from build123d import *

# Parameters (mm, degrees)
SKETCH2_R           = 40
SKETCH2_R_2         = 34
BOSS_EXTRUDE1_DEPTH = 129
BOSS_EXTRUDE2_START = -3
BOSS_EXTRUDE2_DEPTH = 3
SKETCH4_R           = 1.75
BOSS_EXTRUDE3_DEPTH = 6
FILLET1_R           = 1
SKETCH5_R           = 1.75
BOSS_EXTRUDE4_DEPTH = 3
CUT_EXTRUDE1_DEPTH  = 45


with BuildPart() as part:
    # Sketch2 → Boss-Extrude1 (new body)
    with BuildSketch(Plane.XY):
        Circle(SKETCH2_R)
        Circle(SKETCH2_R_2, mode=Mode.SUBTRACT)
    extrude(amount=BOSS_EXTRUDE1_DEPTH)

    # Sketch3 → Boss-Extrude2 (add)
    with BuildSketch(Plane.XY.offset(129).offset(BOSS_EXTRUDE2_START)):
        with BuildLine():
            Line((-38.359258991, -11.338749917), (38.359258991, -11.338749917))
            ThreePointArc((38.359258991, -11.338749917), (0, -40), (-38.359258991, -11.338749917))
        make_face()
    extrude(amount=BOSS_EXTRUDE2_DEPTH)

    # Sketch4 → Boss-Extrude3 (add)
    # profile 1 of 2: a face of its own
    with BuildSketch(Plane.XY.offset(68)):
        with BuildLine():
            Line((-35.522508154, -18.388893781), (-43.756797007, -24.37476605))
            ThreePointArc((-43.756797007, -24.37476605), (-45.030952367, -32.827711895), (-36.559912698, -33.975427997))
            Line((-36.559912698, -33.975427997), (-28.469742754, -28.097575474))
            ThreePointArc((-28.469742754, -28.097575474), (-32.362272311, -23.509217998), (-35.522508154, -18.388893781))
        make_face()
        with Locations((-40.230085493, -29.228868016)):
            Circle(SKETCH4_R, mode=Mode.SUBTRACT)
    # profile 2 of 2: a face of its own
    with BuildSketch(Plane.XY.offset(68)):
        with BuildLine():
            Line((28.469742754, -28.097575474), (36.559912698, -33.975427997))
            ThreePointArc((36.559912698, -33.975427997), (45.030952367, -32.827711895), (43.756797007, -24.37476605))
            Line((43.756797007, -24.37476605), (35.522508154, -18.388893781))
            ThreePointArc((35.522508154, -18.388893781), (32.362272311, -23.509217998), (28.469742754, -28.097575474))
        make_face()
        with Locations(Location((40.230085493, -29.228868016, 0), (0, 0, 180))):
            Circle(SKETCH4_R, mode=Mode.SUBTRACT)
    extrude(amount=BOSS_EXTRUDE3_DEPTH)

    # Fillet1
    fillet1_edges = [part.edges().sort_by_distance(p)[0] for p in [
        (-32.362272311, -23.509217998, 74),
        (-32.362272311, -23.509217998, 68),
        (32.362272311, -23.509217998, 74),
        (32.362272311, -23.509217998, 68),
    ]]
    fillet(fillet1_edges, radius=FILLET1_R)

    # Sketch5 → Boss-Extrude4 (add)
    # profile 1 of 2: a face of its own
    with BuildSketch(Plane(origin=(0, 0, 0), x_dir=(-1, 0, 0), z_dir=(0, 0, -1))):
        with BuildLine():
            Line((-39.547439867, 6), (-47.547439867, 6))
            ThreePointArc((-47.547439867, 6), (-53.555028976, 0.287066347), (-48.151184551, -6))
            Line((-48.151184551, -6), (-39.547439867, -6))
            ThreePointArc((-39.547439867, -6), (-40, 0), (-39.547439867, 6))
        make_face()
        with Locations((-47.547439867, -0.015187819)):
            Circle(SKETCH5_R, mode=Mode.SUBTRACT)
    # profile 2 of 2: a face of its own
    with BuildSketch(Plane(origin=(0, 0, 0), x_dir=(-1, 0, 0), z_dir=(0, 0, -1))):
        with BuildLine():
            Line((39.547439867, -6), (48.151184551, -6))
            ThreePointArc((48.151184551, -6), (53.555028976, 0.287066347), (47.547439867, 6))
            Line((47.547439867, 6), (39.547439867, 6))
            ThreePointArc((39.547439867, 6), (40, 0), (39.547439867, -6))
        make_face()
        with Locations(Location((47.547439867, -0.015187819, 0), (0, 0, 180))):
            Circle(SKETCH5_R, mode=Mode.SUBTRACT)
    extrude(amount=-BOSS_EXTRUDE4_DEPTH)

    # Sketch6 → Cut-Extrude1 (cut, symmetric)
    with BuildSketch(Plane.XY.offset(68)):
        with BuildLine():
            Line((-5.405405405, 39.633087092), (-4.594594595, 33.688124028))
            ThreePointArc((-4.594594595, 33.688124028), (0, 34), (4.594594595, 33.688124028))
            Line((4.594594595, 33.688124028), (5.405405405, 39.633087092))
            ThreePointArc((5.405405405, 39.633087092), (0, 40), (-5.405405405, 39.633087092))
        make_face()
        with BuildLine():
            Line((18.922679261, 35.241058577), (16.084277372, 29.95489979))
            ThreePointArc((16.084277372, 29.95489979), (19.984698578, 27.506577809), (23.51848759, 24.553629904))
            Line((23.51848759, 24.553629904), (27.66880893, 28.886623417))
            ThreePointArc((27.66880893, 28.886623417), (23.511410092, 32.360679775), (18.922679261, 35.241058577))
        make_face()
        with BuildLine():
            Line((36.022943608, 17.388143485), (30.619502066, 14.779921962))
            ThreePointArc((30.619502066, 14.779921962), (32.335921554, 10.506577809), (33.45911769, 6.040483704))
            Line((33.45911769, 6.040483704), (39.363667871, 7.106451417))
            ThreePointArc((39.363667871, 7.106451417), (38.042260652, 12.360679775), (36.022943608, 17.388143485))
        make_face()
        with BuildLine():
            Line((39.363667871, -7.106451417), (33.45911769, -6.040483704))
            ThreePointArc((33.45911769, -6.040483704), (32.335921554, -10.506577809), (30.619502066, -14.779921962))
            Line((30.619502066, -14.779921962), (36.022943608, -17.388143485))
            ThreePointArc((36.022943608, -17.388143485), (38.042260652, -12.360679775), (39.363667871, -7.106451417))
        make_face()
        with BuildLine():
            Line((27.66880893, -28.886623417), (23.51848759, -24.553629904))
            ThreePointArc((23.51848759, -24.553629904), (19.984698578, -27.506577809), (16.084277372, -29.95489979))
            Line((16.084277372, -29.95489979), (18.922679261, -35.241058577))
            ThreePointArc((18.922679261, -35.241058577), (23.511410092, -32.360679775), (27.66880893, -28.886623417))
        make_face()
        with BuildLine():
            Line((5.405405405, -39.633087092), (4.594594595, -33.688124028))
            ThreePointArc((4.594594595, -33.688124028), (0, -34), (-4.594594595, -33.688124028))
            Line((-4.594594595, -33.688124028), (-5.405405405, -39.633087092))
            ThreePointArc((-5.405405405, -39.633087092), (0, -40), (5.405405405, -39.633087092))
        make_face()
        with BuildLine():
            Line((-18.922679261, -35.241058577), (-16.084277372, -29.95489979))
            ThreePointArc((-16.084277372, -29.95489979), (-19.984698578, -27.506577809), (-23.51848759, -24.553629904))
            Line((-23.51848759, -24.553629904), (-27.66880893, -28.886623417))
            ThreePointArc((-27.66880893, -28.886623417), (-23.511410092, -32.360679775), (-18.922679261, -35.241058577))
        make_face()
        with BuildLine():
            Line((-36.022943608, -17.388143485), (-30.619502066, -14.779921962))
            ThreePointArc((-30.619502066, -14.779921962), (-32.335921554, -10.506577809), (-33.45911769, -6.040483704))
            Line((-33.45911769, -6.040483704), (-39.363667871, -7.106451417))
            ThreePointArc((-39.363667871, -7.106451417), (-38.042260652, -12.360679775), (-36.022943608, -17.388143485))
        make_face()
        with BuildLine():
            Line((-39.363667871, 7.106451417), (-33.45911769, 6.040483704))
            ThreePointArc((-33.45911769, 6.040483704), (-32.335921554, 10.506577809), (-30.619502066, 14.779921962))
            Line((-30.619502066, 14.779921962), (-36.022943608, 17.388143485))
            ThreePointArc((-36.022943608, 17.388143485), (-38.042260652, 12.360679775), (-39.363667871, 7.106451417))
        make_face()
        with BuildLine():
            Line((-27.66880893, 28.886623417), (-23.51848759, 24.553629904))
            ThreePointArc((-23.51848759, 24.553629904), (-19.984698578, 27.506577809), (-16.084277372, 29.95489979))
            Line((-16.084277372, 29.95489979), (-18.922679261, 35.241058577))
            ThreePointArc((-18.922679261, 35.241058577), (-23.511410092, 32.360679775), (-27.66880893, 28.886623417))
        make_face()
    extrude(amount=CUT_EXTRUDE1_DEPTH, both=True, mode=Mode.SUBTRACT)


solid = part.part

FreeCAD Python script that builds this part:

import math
import FreeCAD as App
import Part
import Sketcher

V = App.Vector
Q = App.Units.Quantity


def edges_at(feature, points):
    """Names of the edges that pass closest to the given points."""
    edges = feature.Shape.Edges
    near = lambda p: min(range(len(edges)), key=lambda i: edges[i].distToShape(Part.Vertex(*p))[0])
    return sorted({f"Edge{near(p) + 1}" for p in points})

doc = App.newDocument("Part")
body = doc.addObject("PartDesign::Body", "Body")

sketch1 = doc.addObject("Sketcher::SketchObject", "Sketch")
body.addObject(sketch1)
sketch1.AttachmentSupport = (doc.XY_Plane, [""])
sketch1.MapMode = "FlatFace"
sketch1.addGeometry([
    Part.Circle(V(0, 0, 0), V(0, 0, 1), 40),
    Part.Circle(V(0, 0, 0), V(0, 0, 1), 34),
], False)
sketch1.addConstraint([
    Sketcher.Constraint("Coincident", 0, 3, -1, 1),
    Sketcher.Constraint("Coincident", 1, 3, -1, 1),
    Sketcher.Constraint("Diameter", 0, Q("80 mm")),
    Sketcher.Constraint("Diameter", 1, Q("68 mm")),
])
pad1 = doc.addObject("PartDesign::Pad", "Pad")
body.addObject(pad1)
pad1.Profile = sketch1
pad1.Length = 129

sketch2 = doc.addObject("Sketcher::SketchObject", "Sketch001")
body.addObject(sketch2)
sketch2.AttachmentSupport = (doc.XY_Plane, [""])
sketch2.MapMode = "FlatFace"
sketch2.AttachmentOffset = App.Placement(V(0, 0, 126), App.Rotation())
sketch2.addGeometry([
    Part.LineSegment(V(38, -11, 0), V(-38, -11, 0)),
    Part.ArcOfCircle(Part.Circle(V(0, 0, 0), V(0, 0, 1), 40), math.radians(-164), math.radians(-16)),
], False)
sketch2.addConstraint([
    Sketcher.Constraint("Coincident", 0, 1, 1, 2),
    Sketcher.Constraint("Coincident", 1, 1, 0, 2),
    Sketcher.Constraint("Horizontal", 0),
    Sketcher.Constraint("Coincident", 1, 3, -1, 1),
    Sketcher.Constraint("Radius", 1, Q("40 mm")),
    Sketcher.Constraint("DistanceX", 0, 2, 0, 1, Q("76.718518 mm")),
])
pad2 = doc.addObject("PartDesign::Pad", "Pad001")
body.addObject(pad2)
pad2.Profile = sketch2
pad2.Length = 3

sketch3 = doc.addObject("Sketcher::SketchObject", "Sketch002")
body.addObject(sketch3)
sketch3.AttachmentSupport = (doc.XY_Plane, [""])
sketch3.MapMode = "FlatFace"
sketch3.AttachmentOffset = App.Placement(V(0, 0, 68), App.Rotation())
sketch3.addGeometry([
    Part.LineSegment(V(-35.5, -18.4, 0), V(-43.8, -24.4, 0)),
    Part.ArcOfCircle(Part.Circle(V(-40.2, -29.2, 0), V(0, 0, 1), 6), math.radians(126), math.radians(308)),
    Part.LineSegment(V(-36.6, -34, 0), V(-28.5, -28.1, 0)),
    Part.ArcOfCircle(Part.Circle(V(0, 0, 0), V(0, 0, 1), 40), math.radians(-152.63), math.radians(-135.38)),
    Part.Circle(V(-40.2, -29.2, 0), V(0, 0, 1), 1.8),
    Part.LineSegment(V(28.5, -28.1, 0), V(36.6, -34, 0)),
    Part.ArcOfCircle(Part.Circle(V(40.2, -29.2, 0), V(0, 0, 1), 6), math.radians(-128), math.radians(54)),
    Part.LineSegment(V(43.8, -24.4, 0), V(35.5, -18.4, 0)),
    Part.ArcOfCircle(Part.Circle(V(0, 0, 0), V(0, 0, 1), 40), math.radians(-44.62), math.radians(-27.37)),
    Part.Circle(V(40.2, -29.2, 0), V(0, 0, 1), 1.8),
], False)
sketch3.addConstraint([
    Sketcher.Constraint("Coincident", 0, 2, 1, 1),
    Sketcher.Constraint("Coincident", 1, 2, 2, 1),
    Sketcher.Constraint("Coincident", 2, 2, 3, 2),
    Sketcher.Constraint("Coincident", 3, 1, 0, 1),
    Sketcher.Constraint("Coincident", 5, 2, 6, 1),
    Sketcher.Constraint("Coincident", 6, 2, 7, 1),
    Sketcher.Constraint("Coincident", 7, 2, 8, 2),
    Sketcher.Constraint("Coincident", 8, 1, 5, 1),
    Sketcher.Constraint("Coincident", 3, 3, -1, 1),
    Sketcher.Constraint("Coincident", 8, 3, -1, 1),
    Sketcher.Constraint("Coincident", 4, 3, 1, 3),
    Sketcher.Constraint("Coincident", 9, 3, 6, 3),
    Sketcher.Constraint("Equal", 1, 6),
    Sketcher.Constraint("Equal", 3, 8),
    Sketcher.Constraint("Equal", 4, 9),
    Sketcher.Constraint("Symmetric", 1, 3, 6, 3, -2),
    Sketcher.Constraint("Horizontal", 1, 2, 5, 2),
    Sketcher.Constraint("Horizontal", 0, 2, 6, 2),
    Sketcher.Constraint("Horizontal", 3, 1, 7, 2),
    Sketcher.Constraint("Horizontal", 2, 2, 8, 1),
    Sketcher.Constraint("Radius", 1, Q("6 mm")),
    Sketcher.Constraint("Radius", 3, Q("40 mm")),
    Sketcher.Constraint("Diameter", 4, Q("3.5 mm")),
    Sketcher.Constraint("Angle", 2, Q("36 deg")),
    Sketcher.Constraint("Distance", 2, Q("10 mm")),
    Sketcher.Constraint("DistanceY", 1, 3, 0, 2, Q("4.854102 mm")),
    Sketcher.Constraint("DistanceY", 1, 3, -1, 1, Q("29.228868 mm")),
    Sketcher.Constraint("DistanceX", 3, 1, -1, 1, Q("35.522508 mm")),
    Sketcher.Constraint("DistanceX", 4, 3, 6, 3, Q("80.460171 mm")),
])
pad3 = doc.addObject("PartDesign::Pad", "Pad002")
body.addObject(pad3)
pad3.Profile = sketch3
pad3.Length = 6
doc.recompute()

fillet = doc.addObject("PartDesign::Fillet", "Fillet")
body.addObject(fillet)
fillet.Base = (pad3, edges_at(pad3, [
    (-32.362, -23.509, 74),
    (-32.362, -23.509, 68),
    (32.362, -23.509, 74),
    (32.362, -23.509, 68),
]))
fillet.Radius = 1

sketch4 = doc.addObject("Sketcher::SketchObject", "Sketch003")
body.addObject(sketch4)
sketch4.AttachmentSupport = (doc.XY_Plane, [""])
sketch4.MapMode = "FlatFace"
sketch4.addGeometry([
    Part.LineSegment(V(39.5, 6, 0), V(47.5, 6, 0)),
    Part.ArcOfCircle(Part.Circle(V(47.5, 0, 0), V(0, 0, 1), 6), math.radians(-84), math.radians(90)),
    Part.LineSegment(V(48.2, -6, 0), V(39.5, -6, 0)),
    Part.ArcOfCircle(Part.Circle(V(0, 0, 0), V(0, 0, 1), 40), math.radians(-8.63), math.radians(8.63)),
    Part.Circle(V(47.5, 0, 0), V(0, 0, 1), 1.8),
    Part.LineSegment(V(-39.5, -6, 0), V(-48.2, -6, 0)),
    Part.ArcOfCircle(Part.Circle(V(-47.5, 0, 0), V(0, 0, 1), 6), math.radians(90), math.radians(264)),
    Part.LineSegment(V(-47.5, 6, 0), V(-39.5, 6, 0)),
    Part.ArcOfCircle(Part.Circle(V(0, 0, 0), V(0, 0, 1), 40), math.radians(171.37), math.radians(188.63)),
    Part.Circle(V(-47.5, 0, 0), V(0, 0, 1), 1.8),
], False)
sketch4.addConstraint([
    Sketcher.Constraint("Tangent", 0, 2, 1, 2),
    Sketcher.Constraint("Coincident", 1, 1, 2, 1),
    Sketcher.Constraint("Coincident", 2, 2, 3, 1),
    Sketcher.Constraint("Coincident", 3, 2, 0, 1),
    Sketcher.Constraint("Coincident", 5, 2, 6, 2),
    Sketcher.Constraint("Tangent", 6, 1, 7, 1),
    Sketcher.Constraint("Coincident", 7, 2, 8, 1),
    Sketcher.Constraint("Coincident", 8, 2, 5, 1),
    Sketcher.Constraint("Horizontal", 0),
    Sketcher.Constraint("Horizontal", 2),
    Sketcher.Constraint("Horizontal", 5),
    Sketcher.Constraint("Horizontal", 7),
    Sketcher.Constraint("Coincident", 3, 3, -1, 1),
    Sketcher.Constraint("Coincident", 8, 3, -1, 1),
    Sketcher.Constraint("Coincident", 4, 3, 1, 3),
    Sketcher.Constraint("Coincident", 9, 3, 6, 3),
    Sketcher.Constraint("Equal", 1, 6),
    Sketcher.Constraint("Equal", 3, 8),
    Sketcher.Constraint("Equal", 4, 9),
    Sketcher.Constraint("Symmetric", 1, 3, 6, 3, -2),
    Sketcher.Constraint("Horizontal", 2, 2, 5, 2),
    Sketcher.Constraint("Vertical", 2, 2, 3, 2),
    Sketcher.Constraint("Radius", 3, Q("40 mm")),
    Sketcher.Constraint("Diameter", 4, Q("3.5 mm")),
    Sketcher.Constraint("DistanceX", 0, 1, 0, 2, Q("8 mm")),
    Sketcher.Constraint("DistanceY", -1, 1, 0, 2, Q("6 mm")),
    Sketcher.Constraint("Radius", 1, Q("6.015188 mm")),
])
pad4 = doc.addObject("PartDesign::Pad", "Pad003")
body.addObject(pad4)
pad4.Profile = sketch4
pad4.Length = 3

sketch5 = doc.addObject("Sketcher::SketchObject", "Sketch004")
body.addObject(sketch5)
sketch5.AttachmentSupport = (doc.XY_Plane, [""])
sketch5.MapMode = "FlatFace"
sketch5.AttachmentOffset = App.Placement(V(0, 0, 68), App.Rotation())
sketch5.addGeometry([
    Part.LineSegment(V(-5, 40, 0), V(-5, 34, 0)),
    Part.ArcOfCircle(Part.Circle(V(0, 0, 0), V(0, 0, 1), 34), math.radians(82.23), math.radians(97.77)),
    Part.LineSegment(V(5, 34, 0), V(5, 40, 0)),
    Part.ArcOfCircle(Part.Circle(V(0, 0, 0), V(0, 0, 1), 40), math.radians(82.23), math.radians(97.77)),
    Part.LineSegment(V(19, 35, 0), V(16, 30, 0)),
    Part.ArcOfCircle(Part.Circle(V(0, 0, 0), V(0, 0, 1), 34), math.radians(46.23), math.radians(61.77)),
    Part.LineSegment(V(24, 25, 0), V(28, 29, 0)),
    Part.ArcOfCircle(Part.Circle(V(0, 0, 0), V(0, 0, 1), 40), math.radians(46.23), math.radians(61.77)),
    Part.LineSegment(V(36, 17, 0), V(31, 15, 0)),
    Part.ArcOfCircle(Part.Circle(V(0, 0, 0), V(0, 0, 1), 34), math.radians(10.23), math.radians(25.77)),
    Part.LineSegment(V(33, 6, 0), V(39, 7, 0)),
    Part.ArcOfCircle(Part.Circle(V(0, 0, 0), V(0, 0, 1), 40), math.radians(10.23), math.radians(25.77)),
    Part.LineSegment(V(39, -7, 0), V(33, -6, 0)),
    Part.ArcOfCircle(Part.Circle(V(0, 0, 0), V(0, 0, 1), 34), math.radians(-25.77), math.radians(-10.23)),
    Part.LineSegment(V(31, -15, 0), V(36, -17, 0)),
    Part.ArcOfCircle(Part.Circle(V(0, 0, 0), V(0, 0, 1), 40), math.radians(-25.77), math.radians(-10.23)),
    Part.LineSegment(V(28, -29, 0), V(24, -25, 0)),
    Part.ArcOfCircle(Part.Circle(V(0, 0, 0), V(0, 0, 1), 34), math.radians(-61.77), math.radians(-46.23)),
    Part.LineSegment(V(16, -30, 0), V(19, -35, 0)),
    Part.ArcOfCircle(Part.Circle(V(0, 0, 0), V(0, 0, 1), 40), math.radians(-61.77), math.radians(-46.23)),
    Part.LineSegment(V(5, -40, 0), V(5, -34, 0)),
    Part.ArcOfCircle(Part.Circle(V(0, 0, 0), V(0, 0, 1), 34), math.radians(-97.77), math.radians(-82.23)),
    Part.LineSegment(V(-5, -34, 0), V(-5, -40, 0)),
    Part.ArcOfCircle(Part.Circle(V(0, 0, 0), V(0, 0, 1), 40), math.radians(-97.77), math.radians(-82.23)),
    Part.LineSegment(V(-19, -35, 0), V(-16, -30, 0)),
    Part.ArcOfCircle(Part.Circle(V(0, 0, 0), V(0, 0, 1), 34), math.radians(-133.77), math.radians(-118.23)),
    Part.LineSegment(V(-24, -25, 0), V(-28, -29, 0)),
    Part.ArcOfCircle(Part.Circle(V(0, 0, 0), V(0, 0, 1), 40), math.radians(-133.77), math.radians(-118.23)),
    Part.LineSegment(V(-36, -17, 0), V(-31, -15, 0)),
    Part.ArcOfCircle(Part.Circle(V(0, 0, 0), V(0, 0, 1), 34), math.radians(-169.77), math.radians(-154.23)),
    Part.LineSegment(V(-33, -6, 0), V(-39, -7, 0)),
    Part.ArcOfCircle(Part.Circle(V(0, 0, 0), V(0, 0, 1), 40), math.radians(-169.77), math.radians(-154.23)),
    Part.LineSegment(V(-39, 7, 0), V(-33, 6, 0)),
    Part.ArcOfCircle(Part.Circle(V(0, 0, 0), V(0, 0, 1), 34), math.radians(154.23), math.radians(169.77)),
    Part.LineSegment(V(-31, 15, 0), V(-36, 17, 0)),
    Part.ArcOfCircle(Part.Circle(V(0, 0, 0), V(0, 0, 1), 40), math.radians(154.23), math.radians(169.77)),
    Part.LineSegment(V(-28, 29, 0), V(-24, 25, 0)),
    Part.ArcOfCircle(Part.Circle(V(0, 0, 0), V(0, 0, 1), 34), math.radians(118.23), math.radians(133.77)),
    Part.LineSegment(V(-16, 30, 0), V(-19, 35, 0)),
    Part.ArcOfCircle(Part.Circle(V(0, 0, 0), V(0, 0, 1), 40), math.radians(118.23), math.radians(133.77)),
], False)
sketch5.addConstraint([
    Sketcher.Constraint("Coincident", 0, 2, 1, 2),
    Sketcher.Constraint("Coincident", 1, 1, 2, 1),
    Sketcher.Constraint("Coincident", 2, 2, 3, 1),
    Sketcher.Constraint("Coincident", 3, 2, 0, 1),
    Sketcher.Constraint("Coincident", 4, 2, 5, 2),
    Sketcher.Constraint("Coincident", 5, 1, 6, 1),
    Sketcher.Constraint("Coincident", 6, 2, 7, 1),
    Sketcher.Constraint("Coincident", 7, 2, 4, 1),
    Sketcher.Constraint("Coincident", 8, 2, 9, 2),
    Sketcher.Constraint("Coincident", 9, 1, 10, 1),
    Sketcher.Constraint("Coincident", 10, 2, 11, 1),
    Sketcher.Constraint("Coincident", 11, 2, 8, 1),
    Sketcher.Constraint("Coincident", 12, 2, 13, 2),
    Sketcher.Constraint("Coincident", 13, 1, 14, 1),
    Sketcher.Constraint("Coincident", 14, 2, 15, 1),
    Sketcher.Constraint("Coincident", 15, 2, 12, 1),
    Sketcher.Constraint("Coincident", 16, 2, 17, 2),
    Sketcher.Constraint("Coincident", 17, 1, 18, 1),
    Sketcher.Constraint("Coincident", 18, 2, 19, 1),
    Sketcher.Constraint("Coincident", 19, 2, 16, 1),
    Sketcher.Constraint("Coincident", 20, 2, 21, 2),
    Sketcher.Constraint("Coincident", 21, 1, 22, 1),
    Sketcher.Constraint("Coincident", 22, 2, 23, 1),
    Sketcher.Constraint("Coincident", 23, 2, 20, 1),
    Sketcher.Constraint("Coincident", 24, 2, 25, 2),
    Sketcher.Constraint("Coincident", 25, 1, 26, 1),
    Sketcher.Constraint("Coincident", 26, 2, 27, 1),
    Sketcher.Constraint("Coincident", 27, 2, 24, 1),
    Sketcher.Constraint("Coincident", 28, 2, 29, 2),
    Sketcher.Constraint("Coincident", 29, 1, 30, 1),
    Sketcher.Constraint("Coincident", 30, 2, 31, 1),
    Sketcher.Constraint("Coincident", 31, 2, 28, 1),
    Sketcher.Constraint("Coincident", 32, 2, 33, 2),
    Sketcher.Constraint("Coincident", 33, 1, 34, 1),
    Sketcher.Constraint("Coincident", 34, 2, 35, 1),
    Sketcher.Constraint("Coincident", 35, 2, 32, 1),
    Sketcher.Constraint("Coincident", 36, 2, 37, 2),
    Sketcher.Constraint("Coincident", 37, 1, 38, 1),
    Sketcher.Constraint("Coincident", 38, 2, 39, 1),
    Sketcher.Constraint("Coincident", 39, 2, 36, 1),
    Sketcher.Constraint("Coincident", 1, 3, -1, 1),
    Sketcher.Constraint("Coincident", 3, 3, -1, 1),
    Sketcher.Constraint("Coincident", 5, 3, -1, 1),
    Sketcher.Constraint("Coincident", 7, 3, -1, 1),
    Sketcher.Constraint("Coincident", 9, 3, -1, 1),
    Sketcher.Constraint("Coincident", 11, 3, -1, 1),
    Sketcher.Constraint("Coincident", 13, 3, -1, 1),
    Sketcher.Constraint("Coincident", 15, 3, -1, 1),
    Sketcher.Constraint("Coincident", 17, 3, -1, 1),
    Sketcher.Constraint("Coincident", 19, 3, -1, 1),
    Sketcher.Constraint("Coincident", 21, 3, -1, 1),
    Sketcher.Constraint("Coincident", 23, 3, -1, 1),
    Sketcher.Constraint("Coincident", 25, 3, -1, 1),
    Sketcher.Constraint("Coincident", 27, 3, -1, 1),
    Sketcher.Constraint("Coincident", 29, 3, -1, 1),
    Sketcher.Constraint("Coincident", 31, 3, -1, 1),
    Sketcher.Constraint("Coincident", 33, 3, -1, 1),
    Sketcher.Constraint("Coincident", 35, 3, -1, 1),
    Sketcher.Constraint("Coincident", 37, 3, -1, 1),
    Sketcher.Constraint("Coincident", 39, 3, -1, 1),
    Sketcher.Constraint("Equal", 1, 5),
    Sketcher.Constraint("Equal", 3, 7),
    Sketcher.Constraint("Equal", 5, 9),
    Sketcher.Constraint("Equal", 7, 11),
    Sketcher.Constraint("Equal", 9, 13),
    Sketcher.Constraint("Equal", 11, 15),
    Sketcher.Constraint("Equal", 13, 17),
    Sketcher.Constraint("Equal", 15, 19),
    Sketcher.Constraint("Equal", 17, 21),
    Sketcher.Constraint("Equal", 19, 23),
    Sketcher.Constraint("Equal", 21, 25),
    Sketcher.Constraint("Equal", 23, 27),
    Sketcher.Constraint("Equal", 25, 29),
    Sketcher.Constraint("Equal", 27, 31),
    Sketcher.Constraint("Equal", 29, 33),
    Sketcher.Constraint("Equal", 31, 35),
    Sketcher.Constraint("Equal", 33, 37),
    Sketcher.Constraint("Equal", 35, 39),
    Sketcher.Constraint("Parallel", 0, 20),
    Sketcher.Constraint("Parallel", 2, 22),
    Sketcher.Constraint("Parallel", 4, 24),
    Sketcher.Constraint("Parallel", 6, 26),
    Sketcher.Constraint("Parallel", 8, 28),
    Sketcher.Constraint("Parallel", 10, 30),
    Sketcher.Constraint("Parallel", 12, 32),
    Sketcher.Constraint("Parallel", 14, 34),
    Sketcher.Constraint("Parallel", 16, 36),
    Sketcher.Constraint("Parallel", 18, 38),
    Sketcher.Constraint("Horizontal", 0, 2, 1, 1),
    Sketcher.Constraint("Horizontal", 2, 2, 3, 2),
    Sketcher.Constraint("Horizontal", 20, 2, 21, 1),
    Sketcher.Constraint("Horizontal", 17, 1, 24, 2),
    Sketcher.Constraint("Horizontal", 16, 2, 25, 1),
    Sketcher.Constraint("Horizontal", 19, 2, 26, 2),
    Sketcher.Constraint("Horizontal", 18, 2, 27, 2),
    Sketcher.Constraint("Horizontal", 13, 1, 28, 2),
    Sketcher.Constraint("Horizontal", 12, 2, 29, 1),
    Sketcher.Constraint("Horizontal", 15, 2, 30, 2),
    Sketcher.Constraint("Horizontal", 14, 2, 31, 2),
    Sketcher.Constraint("Horizontal", 9, 1, 32, 2),
    Sketcher.Constraint("Horizontal", 8, 2, 33, 1),
    Sketcher.Constraint("Horizontal", 5, 1, 36, 2),
    Sketcher.Constraint("Horizontal", 4, 2, 37, 1),
    Sketcher.Constraint("Vertical", 9, 1, 12, 2),
    Sketcher.Constraint("Vertical", 8, 2, 13, 1),
    Sketcher.Constraint("Vertical", 5, 1, 16, 2),
    Sketcher.Constraint("Vertical", 4, 2, 17, 1),
    Sketcher.Constraint("Vertical", 1, 1, 20, 2),
    Sketcher.Constraint("Radius", 1, Q("34 mm")),
    Sketcher.Constraint("Radius", 3, Q("40 mm")),
    Sketcher.Constraint("DistanceX", 0, 2, 2, 2, Q("10 mm")),
    Sketcher.Constraint("DistanceY", -1, 1, 4, 2, Q("29.9549 mm")),
    Sketcher.Constraint("DistanceY", 6, 2, 1, 1, Q("4.801501 mm")),
    Sketcher.Constraint("DistanceX", 4, 2, 7, 2, Q("2.838402 mm")),
    Sketcher.Constraint("DistanceY", 8, 2, 6, 2, Q("14.106701 mm")),
    Sketcher.Constraint("DistanceY", -1, 1, 5, 1, Q("24.55363 mm")),
    Sketcher.Constraint("DistanceX", -1, 1, 6, 2, Q("27.668809 mm")),
    Sketcher.Constraint("DistanceY", -1, 1, 10, 2, Q("7.106451 mm")),
    Sketcher.Constraint("DistanceY", 9, 1, 8, 2, Q("8.739438 mm")),
    Sketcher.Constraint("DistanceX", 8, 2, 11, 2, Q("5.403442 mm")),
])
pocket1 = doc.addObject("PartDesign::Pocket", "Pocket")
body.addObject(pocket1)
pocket1.Profile = sketch5
pocket1.Length = 90
pocket1.Midplane = True

doc.recompute()
